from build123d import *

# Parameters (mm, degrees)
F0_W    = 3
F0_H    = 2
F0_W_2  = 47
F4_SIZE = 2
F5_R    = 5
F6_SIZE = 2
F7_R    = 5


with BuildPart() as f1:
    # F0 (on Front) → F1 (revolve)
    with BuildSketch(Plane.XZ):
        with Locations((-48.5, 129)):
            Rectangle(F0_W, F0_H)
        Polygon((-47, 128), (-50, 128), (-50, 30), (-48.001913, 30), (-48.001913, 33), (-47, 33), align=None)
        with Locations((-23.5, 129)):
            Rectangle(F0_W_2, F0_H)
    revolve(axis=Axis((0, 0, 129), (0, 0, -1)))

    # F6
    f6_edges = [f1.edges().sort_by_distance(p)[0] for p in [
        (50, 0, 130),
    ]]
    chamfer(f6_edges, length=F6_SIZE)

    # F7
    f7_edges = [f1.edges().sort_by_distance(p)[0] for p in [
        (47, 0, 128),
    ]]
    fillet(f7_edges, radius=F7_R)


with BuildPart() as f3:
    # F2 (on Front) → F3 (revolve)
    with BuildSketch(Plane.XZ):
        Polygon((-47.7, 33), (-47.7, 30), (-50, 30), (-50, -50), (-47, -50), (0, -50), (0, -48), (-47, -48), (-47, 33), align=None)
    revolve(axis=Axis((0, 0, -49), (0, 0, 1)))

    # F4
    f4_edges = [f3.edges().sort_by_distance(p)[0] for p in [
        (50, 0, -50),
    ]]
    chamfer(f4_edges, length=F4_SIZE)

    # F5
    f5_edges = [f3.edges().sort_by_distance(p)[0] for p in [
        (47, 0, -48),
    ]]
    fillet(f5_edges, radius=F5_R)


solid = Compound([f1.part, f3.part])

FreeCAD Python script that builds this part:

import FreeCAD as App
import Part
import Sketcher
from FreeCAD import Vector
Q = App.Units.Quantity


def edges_at(feature, points):
    """Names of the edges that pass closest to the given points."""
    edges = feature.Shape.Edges
    near = lambda p: min(range(len(edges)), key=lambda i: edges[i].distToShape(Part.Vertex(*p))[0])
    return sorted({f"Edge{near(p) + 1}" for p in points})


def add_polygon(sketch, points):
    """Adds a closed chain of lines whose ends are joined by coincident constraints."""
    first, n = sketch.GeometryCount, len(points)
    for a, b in zip(points, points[1:] + points[:1]):
        sketch.addGeometry(Part.LineSegment(App.Vector(*a, 0), App.Vector(*b, 0)), False)
    for i in range(n):
        sketch.addConstraint(Sketcher.Constraint("Coincident", first + i, 2, first + (i + 1) % n, 1))

doc = App.newDocument("Part")
body = doc.addObject("PartDesign::Body", "Body")

sketch1 = body.newObject("Sketcher::SketchObject", "Sketch")
sketch1.AttachmentSupport = (doc.getObject("XZ_Plane"), [""])
sketch1.MapMode = "FlatFace"
add_polygon(sketch1, [(-50, 130), (-50, 30), (-48, 30), (-48, 33), (-47, 33), (-47, 128), (0, 128), (0, 130)])
sketch1.addConstraint(Sketcher.Constraint("Vertical", 0))
sketch1.addConstraint(Sketcher.Constraint("Horizontal", 1))
sketch1.addConstraint(Sketcher.Constraint("Vertical", 2))
sketch1.addConstraint(Sketcher.Constraint("Horizontal", 3))
sketch1.addConstraint(Sketcher.Constraint("Vertical", 4))
sketch1.addConstraint(Sketcher.Constraint("Horizontal", 5))
sketch1.addConstraint(Sketcher.Constraint("Vertical", 6))
sketch1.addConstraint(Sketcher.Constraint("Horizontal", 7))
sketch1.addConstraint(Sketcher.Constraint("PointOnObject", 5, 2, -2))
sketch1.addConstraint(Sketcher.Constraint("DistanceX", 5, 1, 5, 2, Q("47 mm")))
sketch1.addConstraint(Sketcher.Constraint("DistanceX", 7, 2, 7, 1, Q("50 mm")))
sketch1.addConstraint(Sketcher.Constraint("DistanceY", 0, 2, 0, 1, Q("100 mm")))
sketch1.addConstraint(Sketcher.Constraint("DistanceY", 2, 1, 2, 2, Q("3 mm")))
sketch1.addConstraint(Sketcher.Constraint("DistanceY", 4, 1, 4, 2, Q("95 mm")))
sketch1.addConstraint(Sketcher.Constraint("DistanceY", -1, 1, 0, 2, Q("30 mm")))
sketch1.addConstraint(Sketcher.Constraint("DistanceX", 1, 1, 1, 2, Q("1.998087 mm")))
revolution = body.newObject("PartDesign::Revolution", "Revolution")
revolution.Profile = sketch1
revolution.ReferenceAxis = (sketch1, ["V_Axis"])
revolution.Angle = 360
doc.recompute()

chamfer = body.newObject("PartDesign::Chamfer", "Chamfer")
chamfer.Base = (revolution, edges_at(revolution, [(50, 0, 130)]))
chamfer.Size = 2
doc.recompute()

fillet = body.newObject("PartDesign::Fillet", "Fillet")
fillet.Base = (chamfer, edges_at(chamfer, [(47, 0, 128)]))
fillet.Radius = 5
body2 = doc.addObject("PartDesign::Body", "Body001")

sketch2 = body2.newObject("Sketcher::SketchObject", "Sketch001")
sketch2.AttachmentSupport = (doc.getObject("XZ_Plane001"), [""])
sketch2.MapMode = "FlatFace"
add_polygon(sketch2, [(-47.7, 33), (-47.7, 30), (-50, 30), (-50, -50), (0, -50), (0, -48), (-47, -48), (-47, 33)])
sketch2.addConstraint(Sketcher.Constraint("Vertical", 0))
sketch2.addConstraint(Sketcher.Constraint("Horizontal", 1))
sketch2.addConstraint(Sketcher.Constraint("Vertical", 2))
sketch2.addConstraint(Sketcher.Constraint("Horizontal", 3))
sketch2.addConstraint(Sketcher.Constraint("Vertical", 4))
sketch2.addConstraint(Sketcher.Constraint("Horizontal", 5))
sketch2.addConstraint(Sketcher.Constraint("Vertical", 6))
sketch2.addConstraint(Sketcher.Constraint("Horizontal", 7))
sketch2.addConstraint(Sketcher.Constraint("PointOnObject", 3, 2, -2))
sketch2.addConstraint(Sketcher.Constraint("DistanceX", 3, 1, 3, 2, Q("50 mm")))
sketch2.addConstraint(Sketcher.Constraint("DistanceX", 5, 2, 5, 1, Q("47 mm")))
sketch2.addConstraint(Sketcher.Constraint("DistanceY", 0, 2, 0, 1, Q("3 mm")))
sketch2.addConstraint(Sketcher.Constraint("DistanceY", 2, 2, 2, 1, Q("80 mm")))
sketch2.addConstraint(Sketcher.Constraint("DistanceY", 4, 1, 4, 2, Q("2 mm")))
sketch2.addConstraint(Sketcher.Constraint("DistanceX", 1, 2, 1, 1, Q("2.3 mm")))
sketch2.addConstraint(Sketcher.Constraint("DistanceY", -1, 1, 0, 2, Q("30 mm")))
revolution2 = body2.newObject("PartDesign::Revolution", "Revolution001")
revolution2.Profile = sketch2
revolution2.ReferenceAxis = (sketch2, ["V_Axis"])
revolution2.Angle = 360
doc.recompute()

chamfer2 = body2.newObject("PartDesign::Chamfer", "Chamfer001")
chamfer2.Base = (revolution2, edges_at(revolution2, [(50, 0, -50)]))
chamfer2.Size = 2
doc.recompute()

fillet2 = body2.newObject("PartDesign::Fillet", "Fillet001")
fillet2.Base = (chamfer2, edges_at(chamfer2, [(47, 0, -48)]))
fillet2.Radius = 5

doc.recompute()
